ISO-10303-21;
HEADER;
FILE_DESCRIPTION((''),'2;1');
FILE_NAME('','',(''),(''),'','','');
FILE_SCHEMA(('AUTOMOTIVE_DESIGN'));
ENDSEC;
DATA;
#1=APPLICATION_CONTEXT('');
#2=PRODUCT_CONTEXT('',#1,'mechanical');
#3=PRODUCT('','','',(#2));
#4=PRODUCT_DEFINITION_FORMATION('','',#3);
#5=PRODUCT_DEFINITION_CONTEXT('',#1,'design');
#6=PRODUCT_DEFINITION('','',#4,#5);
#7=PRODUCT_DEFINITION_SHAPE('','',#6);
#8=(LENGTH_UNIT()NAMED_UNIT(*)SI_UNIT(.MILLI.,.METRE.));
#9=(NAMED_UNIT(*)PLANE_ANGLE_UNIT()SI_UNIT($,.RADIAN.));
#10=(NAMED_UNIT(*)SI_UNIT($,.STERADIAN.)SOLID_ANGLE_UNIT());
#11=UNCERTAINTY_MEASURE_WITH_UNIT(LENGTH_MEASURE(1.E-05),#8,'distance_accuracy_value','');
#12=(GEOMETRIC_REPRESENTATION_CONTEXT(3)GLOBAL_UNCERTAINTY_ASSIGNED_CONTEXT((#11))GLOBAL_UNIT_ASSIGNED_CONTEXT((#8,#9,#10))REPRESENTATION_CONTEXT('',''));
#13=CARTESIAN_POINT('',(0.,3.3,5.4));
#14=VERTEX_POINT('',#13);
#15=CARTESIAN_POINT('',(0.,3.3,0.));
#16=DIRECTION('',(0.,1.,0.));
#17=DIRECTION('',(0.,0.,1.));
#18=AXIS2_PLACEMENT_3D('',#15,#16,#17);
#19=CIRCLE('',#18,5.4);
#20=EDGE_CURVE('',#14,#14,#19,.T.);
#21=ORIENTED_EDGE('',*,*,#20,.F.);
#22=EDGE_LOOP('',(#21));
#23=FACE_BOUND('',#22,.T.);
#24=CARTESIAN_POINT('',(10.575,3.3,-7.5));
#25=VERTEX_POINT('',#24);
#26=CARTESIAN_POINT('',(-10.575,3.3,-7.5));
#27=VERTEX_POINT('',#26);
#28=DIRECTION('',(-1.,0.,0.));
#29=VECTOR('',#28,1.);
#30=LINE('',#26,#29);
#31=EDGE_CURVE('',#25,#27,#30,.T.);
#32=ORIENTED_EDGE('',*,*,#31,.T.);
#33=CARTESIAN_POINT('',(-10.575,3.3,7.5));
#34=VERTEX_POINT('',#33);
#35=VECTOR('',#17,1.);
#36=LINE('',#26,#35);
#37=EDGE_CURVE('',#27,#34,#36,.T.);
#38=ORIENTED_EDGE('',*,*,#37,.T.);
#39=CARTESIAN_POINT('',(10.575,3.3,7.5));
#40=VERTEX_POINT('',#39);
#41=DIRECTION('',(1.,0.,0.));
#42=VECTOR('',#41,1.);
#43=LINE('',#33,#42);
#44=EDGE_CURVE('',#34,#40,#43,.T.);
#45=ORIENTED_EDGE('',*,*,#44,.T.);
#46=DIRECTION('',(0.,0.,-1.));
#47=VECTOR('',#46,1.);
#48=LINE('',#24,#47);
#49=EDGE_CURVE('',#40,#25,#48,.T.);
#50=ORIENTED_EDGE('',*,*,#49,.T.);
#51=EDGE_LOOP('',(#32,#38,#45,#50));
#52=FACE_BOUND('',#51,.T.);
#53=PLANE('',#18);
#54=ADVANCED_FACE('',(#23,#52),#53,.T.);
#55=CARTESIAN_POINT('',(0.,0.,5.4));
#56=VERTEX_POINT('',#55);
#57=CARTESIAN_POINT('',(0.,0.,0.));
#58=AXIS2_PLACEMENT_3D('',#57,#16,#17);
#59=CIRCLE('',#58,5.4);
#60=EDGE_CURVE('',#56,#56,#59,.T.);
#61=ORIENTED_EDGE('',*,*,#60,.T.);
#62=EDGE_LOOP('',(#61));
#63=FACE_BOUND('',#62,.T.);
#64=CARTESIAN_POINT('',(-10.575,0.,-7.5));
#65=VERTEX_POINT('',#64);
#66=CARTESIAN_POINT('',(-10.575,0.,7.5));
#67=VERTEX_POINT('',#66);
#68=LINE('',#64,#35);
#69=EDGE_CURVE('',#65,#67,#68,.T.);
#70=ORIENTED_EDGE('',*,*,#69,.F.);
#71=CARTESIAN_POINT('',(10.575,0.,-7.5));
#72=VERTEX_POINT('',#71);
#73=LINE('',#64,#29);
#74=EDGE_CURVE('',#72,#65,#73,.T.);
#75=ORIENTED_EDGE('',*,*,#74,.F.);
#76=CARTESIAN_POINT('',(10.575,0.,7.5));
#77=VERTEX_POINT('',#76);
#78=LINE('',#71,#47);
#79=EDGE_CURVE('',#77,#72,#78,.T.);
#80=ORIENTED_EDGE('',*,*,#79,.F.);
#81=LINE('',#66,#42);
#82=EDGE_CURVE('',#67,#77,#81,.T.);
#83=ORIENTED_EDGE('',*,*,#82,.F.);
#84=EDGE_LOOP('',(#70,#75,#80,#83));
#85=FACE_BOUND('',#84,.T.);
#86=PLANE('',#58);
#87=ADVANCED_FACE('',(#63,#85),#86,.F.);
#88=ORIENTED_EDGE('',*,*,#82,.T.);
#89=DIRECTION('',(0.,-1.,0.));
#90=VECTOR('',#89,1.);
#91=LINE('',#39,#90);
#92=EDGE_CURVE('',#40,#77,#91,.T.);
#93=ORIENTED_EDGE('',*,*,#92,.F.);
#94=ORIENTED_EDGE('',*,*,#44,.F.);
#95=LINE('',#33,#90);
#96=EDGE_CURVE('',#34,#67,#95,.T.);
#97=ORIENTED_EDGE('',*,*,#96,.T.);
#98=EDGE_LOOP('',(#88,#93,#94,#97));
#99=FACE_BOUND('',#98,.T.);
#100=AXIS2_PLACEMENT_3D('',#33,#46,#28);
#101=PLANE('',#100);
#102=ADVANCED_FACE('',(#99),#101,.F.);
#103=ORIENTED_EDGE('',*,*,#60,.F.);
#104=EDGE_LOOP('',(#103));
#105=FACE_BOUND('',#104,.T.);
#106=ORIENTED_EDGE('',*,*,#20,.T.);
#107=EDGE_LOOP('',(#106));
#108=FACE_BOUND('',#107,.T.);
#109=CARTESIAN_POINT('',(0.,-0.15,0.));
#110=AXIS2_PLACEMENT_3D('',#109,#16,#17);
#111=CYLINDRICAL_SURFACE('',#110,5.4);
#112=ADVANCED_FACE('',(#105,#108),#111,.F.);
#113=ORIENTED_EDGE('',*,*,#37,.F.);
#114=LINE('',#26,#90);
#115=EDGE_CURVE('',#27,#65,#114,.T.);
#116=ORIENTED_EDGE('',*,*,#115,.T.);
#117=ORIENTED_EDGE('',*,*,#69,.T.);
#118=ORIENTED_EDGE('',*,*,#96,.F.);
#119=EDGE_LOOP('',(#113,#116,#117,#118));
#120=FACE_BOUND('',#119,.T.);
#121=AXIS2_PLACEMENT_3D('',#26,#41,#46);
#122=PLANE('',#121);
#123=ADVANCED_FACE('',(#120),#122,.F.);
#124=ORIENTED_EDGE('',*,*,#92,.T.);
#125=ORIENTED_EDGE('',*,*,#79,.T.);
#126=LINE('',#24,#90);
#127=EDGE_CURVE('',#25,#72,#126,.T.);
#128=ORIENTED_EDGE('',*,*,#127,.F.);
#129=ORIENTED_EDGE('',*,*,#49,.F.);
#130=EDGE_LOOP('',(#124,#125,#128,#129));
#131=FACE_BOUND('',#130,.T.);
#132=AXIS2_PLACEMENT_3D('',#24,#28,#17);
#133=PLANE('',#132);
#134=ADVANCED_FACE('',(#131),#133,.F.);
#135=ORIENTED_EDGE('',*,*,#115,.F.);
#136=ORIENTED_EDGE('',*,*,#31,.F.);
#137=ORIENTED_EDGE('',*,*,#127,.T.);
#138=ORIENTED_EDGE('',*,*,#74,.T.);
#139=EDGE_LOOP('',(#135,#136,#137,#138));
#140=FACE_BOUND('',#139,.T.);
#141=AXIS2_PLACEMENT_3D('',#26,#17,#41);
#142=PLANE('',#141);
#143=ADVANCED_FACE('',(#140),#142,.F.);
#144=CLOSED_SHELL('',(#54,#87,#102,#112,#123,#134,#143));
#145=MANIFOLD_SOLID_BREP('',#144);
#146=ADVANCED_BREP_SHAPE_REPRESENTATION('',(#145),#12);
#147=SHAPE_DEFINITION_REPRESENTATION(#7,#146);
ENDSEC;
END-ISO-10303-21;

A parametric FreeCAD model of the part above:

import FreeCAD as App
import Part
import Sketcher
Q = App.Units.Quantity


def add_polygon(sketch, points):
    """Adds a closed chain of lines whose ends are joined by coincident constraints."""
    first, n = sketch.GeometryCount, len(points)
    for a, b in zip(points, points[1:] + points[:1]):
        sketch.addGeometry(Part.LineSegment(App.Vector(*a, 0), App.Vector(*b, 0)), False)
    for i in range(n):
        sketch.addConstraint(Sketcher.Constraint("Coincident", first + i, 2, first + (i + 1) % n, 1))

doc = App.newDocument("Part")
body = doc.addObject("PartDesign::Body", "Body")

# Sketch on XZ plane
sketch1 = body.newObject("Sketcher::SketchObject", "Sketch")
sketch1.AttachmentSupport = (doc.getObject("XZ_Plane"), [""])
sketch1.MapMode = "FlatFace"
add_polygon(sketch1, [(-10.575, -7.5), (-10.575, 7.5), (10.575, 7.5), (10.575, -7.5)])  # lines 0-3
sketch1.addConstraint(Sketcher.Constraint("Vertical", 0))
sketch1.addConstraint(Sketcher.Constraint("Horizontal", 1))
sketch1.addConstraint(Sketcher.Constraint("Vertical", 2))
sketch1.addConstraint(Sketcher.Constraint("Horizontal", 3))
sketch1.addConstraint(Sketcher.Constraint("Symmetric", 0, 2, 2, 2, -1, 1))
sketch1.addConstraint(Sketcher.Constraint("DistanceY", 0, 1, 0, 2, Q("15 mm")))
sketch1.addConstraint(Sketcher.Constraint("DistanceX", 1, 1, 1, 2, Q("21.15 mm")))
pad1 = body.newObject("PartDesign::Pad", "Pad")
pad1.Profile = sketch1
pad1.Length = 3.3
pad1.Reversed = True

# Sketch on XZ plane
sketch2 = body.newObject("Sketcher::SketchObject", "Sketch001")
sketch2.AttachmentSupport = (doc.getObject("XZ_Plane"), [""])
sketch2.MapMode = "FlatFace"
sketch2.AttachmentOffset = App.Placement(App.Vector(0, 0, -3.3), App.Rotation())
sketch2.addGeometry(Part.Circle(App.Vector(0, 0, 0), App.Vector(0, 0, 1), 5.4), False)
sketch2.addConstraint(Sketcher.Constraint("Coincident", 0, 3, -1, 1))
sketch2.addConstraint(Sketcher.Constraint("Diameter", 0, Q("10.8 mm")))
pocket1 = body.newObject("PartDesign::Pocket", "Pocket")
pocket1.Profile = sketch2
pocket1.Length = 3.45
pocket1.Reversed = True

doc.recompute()
